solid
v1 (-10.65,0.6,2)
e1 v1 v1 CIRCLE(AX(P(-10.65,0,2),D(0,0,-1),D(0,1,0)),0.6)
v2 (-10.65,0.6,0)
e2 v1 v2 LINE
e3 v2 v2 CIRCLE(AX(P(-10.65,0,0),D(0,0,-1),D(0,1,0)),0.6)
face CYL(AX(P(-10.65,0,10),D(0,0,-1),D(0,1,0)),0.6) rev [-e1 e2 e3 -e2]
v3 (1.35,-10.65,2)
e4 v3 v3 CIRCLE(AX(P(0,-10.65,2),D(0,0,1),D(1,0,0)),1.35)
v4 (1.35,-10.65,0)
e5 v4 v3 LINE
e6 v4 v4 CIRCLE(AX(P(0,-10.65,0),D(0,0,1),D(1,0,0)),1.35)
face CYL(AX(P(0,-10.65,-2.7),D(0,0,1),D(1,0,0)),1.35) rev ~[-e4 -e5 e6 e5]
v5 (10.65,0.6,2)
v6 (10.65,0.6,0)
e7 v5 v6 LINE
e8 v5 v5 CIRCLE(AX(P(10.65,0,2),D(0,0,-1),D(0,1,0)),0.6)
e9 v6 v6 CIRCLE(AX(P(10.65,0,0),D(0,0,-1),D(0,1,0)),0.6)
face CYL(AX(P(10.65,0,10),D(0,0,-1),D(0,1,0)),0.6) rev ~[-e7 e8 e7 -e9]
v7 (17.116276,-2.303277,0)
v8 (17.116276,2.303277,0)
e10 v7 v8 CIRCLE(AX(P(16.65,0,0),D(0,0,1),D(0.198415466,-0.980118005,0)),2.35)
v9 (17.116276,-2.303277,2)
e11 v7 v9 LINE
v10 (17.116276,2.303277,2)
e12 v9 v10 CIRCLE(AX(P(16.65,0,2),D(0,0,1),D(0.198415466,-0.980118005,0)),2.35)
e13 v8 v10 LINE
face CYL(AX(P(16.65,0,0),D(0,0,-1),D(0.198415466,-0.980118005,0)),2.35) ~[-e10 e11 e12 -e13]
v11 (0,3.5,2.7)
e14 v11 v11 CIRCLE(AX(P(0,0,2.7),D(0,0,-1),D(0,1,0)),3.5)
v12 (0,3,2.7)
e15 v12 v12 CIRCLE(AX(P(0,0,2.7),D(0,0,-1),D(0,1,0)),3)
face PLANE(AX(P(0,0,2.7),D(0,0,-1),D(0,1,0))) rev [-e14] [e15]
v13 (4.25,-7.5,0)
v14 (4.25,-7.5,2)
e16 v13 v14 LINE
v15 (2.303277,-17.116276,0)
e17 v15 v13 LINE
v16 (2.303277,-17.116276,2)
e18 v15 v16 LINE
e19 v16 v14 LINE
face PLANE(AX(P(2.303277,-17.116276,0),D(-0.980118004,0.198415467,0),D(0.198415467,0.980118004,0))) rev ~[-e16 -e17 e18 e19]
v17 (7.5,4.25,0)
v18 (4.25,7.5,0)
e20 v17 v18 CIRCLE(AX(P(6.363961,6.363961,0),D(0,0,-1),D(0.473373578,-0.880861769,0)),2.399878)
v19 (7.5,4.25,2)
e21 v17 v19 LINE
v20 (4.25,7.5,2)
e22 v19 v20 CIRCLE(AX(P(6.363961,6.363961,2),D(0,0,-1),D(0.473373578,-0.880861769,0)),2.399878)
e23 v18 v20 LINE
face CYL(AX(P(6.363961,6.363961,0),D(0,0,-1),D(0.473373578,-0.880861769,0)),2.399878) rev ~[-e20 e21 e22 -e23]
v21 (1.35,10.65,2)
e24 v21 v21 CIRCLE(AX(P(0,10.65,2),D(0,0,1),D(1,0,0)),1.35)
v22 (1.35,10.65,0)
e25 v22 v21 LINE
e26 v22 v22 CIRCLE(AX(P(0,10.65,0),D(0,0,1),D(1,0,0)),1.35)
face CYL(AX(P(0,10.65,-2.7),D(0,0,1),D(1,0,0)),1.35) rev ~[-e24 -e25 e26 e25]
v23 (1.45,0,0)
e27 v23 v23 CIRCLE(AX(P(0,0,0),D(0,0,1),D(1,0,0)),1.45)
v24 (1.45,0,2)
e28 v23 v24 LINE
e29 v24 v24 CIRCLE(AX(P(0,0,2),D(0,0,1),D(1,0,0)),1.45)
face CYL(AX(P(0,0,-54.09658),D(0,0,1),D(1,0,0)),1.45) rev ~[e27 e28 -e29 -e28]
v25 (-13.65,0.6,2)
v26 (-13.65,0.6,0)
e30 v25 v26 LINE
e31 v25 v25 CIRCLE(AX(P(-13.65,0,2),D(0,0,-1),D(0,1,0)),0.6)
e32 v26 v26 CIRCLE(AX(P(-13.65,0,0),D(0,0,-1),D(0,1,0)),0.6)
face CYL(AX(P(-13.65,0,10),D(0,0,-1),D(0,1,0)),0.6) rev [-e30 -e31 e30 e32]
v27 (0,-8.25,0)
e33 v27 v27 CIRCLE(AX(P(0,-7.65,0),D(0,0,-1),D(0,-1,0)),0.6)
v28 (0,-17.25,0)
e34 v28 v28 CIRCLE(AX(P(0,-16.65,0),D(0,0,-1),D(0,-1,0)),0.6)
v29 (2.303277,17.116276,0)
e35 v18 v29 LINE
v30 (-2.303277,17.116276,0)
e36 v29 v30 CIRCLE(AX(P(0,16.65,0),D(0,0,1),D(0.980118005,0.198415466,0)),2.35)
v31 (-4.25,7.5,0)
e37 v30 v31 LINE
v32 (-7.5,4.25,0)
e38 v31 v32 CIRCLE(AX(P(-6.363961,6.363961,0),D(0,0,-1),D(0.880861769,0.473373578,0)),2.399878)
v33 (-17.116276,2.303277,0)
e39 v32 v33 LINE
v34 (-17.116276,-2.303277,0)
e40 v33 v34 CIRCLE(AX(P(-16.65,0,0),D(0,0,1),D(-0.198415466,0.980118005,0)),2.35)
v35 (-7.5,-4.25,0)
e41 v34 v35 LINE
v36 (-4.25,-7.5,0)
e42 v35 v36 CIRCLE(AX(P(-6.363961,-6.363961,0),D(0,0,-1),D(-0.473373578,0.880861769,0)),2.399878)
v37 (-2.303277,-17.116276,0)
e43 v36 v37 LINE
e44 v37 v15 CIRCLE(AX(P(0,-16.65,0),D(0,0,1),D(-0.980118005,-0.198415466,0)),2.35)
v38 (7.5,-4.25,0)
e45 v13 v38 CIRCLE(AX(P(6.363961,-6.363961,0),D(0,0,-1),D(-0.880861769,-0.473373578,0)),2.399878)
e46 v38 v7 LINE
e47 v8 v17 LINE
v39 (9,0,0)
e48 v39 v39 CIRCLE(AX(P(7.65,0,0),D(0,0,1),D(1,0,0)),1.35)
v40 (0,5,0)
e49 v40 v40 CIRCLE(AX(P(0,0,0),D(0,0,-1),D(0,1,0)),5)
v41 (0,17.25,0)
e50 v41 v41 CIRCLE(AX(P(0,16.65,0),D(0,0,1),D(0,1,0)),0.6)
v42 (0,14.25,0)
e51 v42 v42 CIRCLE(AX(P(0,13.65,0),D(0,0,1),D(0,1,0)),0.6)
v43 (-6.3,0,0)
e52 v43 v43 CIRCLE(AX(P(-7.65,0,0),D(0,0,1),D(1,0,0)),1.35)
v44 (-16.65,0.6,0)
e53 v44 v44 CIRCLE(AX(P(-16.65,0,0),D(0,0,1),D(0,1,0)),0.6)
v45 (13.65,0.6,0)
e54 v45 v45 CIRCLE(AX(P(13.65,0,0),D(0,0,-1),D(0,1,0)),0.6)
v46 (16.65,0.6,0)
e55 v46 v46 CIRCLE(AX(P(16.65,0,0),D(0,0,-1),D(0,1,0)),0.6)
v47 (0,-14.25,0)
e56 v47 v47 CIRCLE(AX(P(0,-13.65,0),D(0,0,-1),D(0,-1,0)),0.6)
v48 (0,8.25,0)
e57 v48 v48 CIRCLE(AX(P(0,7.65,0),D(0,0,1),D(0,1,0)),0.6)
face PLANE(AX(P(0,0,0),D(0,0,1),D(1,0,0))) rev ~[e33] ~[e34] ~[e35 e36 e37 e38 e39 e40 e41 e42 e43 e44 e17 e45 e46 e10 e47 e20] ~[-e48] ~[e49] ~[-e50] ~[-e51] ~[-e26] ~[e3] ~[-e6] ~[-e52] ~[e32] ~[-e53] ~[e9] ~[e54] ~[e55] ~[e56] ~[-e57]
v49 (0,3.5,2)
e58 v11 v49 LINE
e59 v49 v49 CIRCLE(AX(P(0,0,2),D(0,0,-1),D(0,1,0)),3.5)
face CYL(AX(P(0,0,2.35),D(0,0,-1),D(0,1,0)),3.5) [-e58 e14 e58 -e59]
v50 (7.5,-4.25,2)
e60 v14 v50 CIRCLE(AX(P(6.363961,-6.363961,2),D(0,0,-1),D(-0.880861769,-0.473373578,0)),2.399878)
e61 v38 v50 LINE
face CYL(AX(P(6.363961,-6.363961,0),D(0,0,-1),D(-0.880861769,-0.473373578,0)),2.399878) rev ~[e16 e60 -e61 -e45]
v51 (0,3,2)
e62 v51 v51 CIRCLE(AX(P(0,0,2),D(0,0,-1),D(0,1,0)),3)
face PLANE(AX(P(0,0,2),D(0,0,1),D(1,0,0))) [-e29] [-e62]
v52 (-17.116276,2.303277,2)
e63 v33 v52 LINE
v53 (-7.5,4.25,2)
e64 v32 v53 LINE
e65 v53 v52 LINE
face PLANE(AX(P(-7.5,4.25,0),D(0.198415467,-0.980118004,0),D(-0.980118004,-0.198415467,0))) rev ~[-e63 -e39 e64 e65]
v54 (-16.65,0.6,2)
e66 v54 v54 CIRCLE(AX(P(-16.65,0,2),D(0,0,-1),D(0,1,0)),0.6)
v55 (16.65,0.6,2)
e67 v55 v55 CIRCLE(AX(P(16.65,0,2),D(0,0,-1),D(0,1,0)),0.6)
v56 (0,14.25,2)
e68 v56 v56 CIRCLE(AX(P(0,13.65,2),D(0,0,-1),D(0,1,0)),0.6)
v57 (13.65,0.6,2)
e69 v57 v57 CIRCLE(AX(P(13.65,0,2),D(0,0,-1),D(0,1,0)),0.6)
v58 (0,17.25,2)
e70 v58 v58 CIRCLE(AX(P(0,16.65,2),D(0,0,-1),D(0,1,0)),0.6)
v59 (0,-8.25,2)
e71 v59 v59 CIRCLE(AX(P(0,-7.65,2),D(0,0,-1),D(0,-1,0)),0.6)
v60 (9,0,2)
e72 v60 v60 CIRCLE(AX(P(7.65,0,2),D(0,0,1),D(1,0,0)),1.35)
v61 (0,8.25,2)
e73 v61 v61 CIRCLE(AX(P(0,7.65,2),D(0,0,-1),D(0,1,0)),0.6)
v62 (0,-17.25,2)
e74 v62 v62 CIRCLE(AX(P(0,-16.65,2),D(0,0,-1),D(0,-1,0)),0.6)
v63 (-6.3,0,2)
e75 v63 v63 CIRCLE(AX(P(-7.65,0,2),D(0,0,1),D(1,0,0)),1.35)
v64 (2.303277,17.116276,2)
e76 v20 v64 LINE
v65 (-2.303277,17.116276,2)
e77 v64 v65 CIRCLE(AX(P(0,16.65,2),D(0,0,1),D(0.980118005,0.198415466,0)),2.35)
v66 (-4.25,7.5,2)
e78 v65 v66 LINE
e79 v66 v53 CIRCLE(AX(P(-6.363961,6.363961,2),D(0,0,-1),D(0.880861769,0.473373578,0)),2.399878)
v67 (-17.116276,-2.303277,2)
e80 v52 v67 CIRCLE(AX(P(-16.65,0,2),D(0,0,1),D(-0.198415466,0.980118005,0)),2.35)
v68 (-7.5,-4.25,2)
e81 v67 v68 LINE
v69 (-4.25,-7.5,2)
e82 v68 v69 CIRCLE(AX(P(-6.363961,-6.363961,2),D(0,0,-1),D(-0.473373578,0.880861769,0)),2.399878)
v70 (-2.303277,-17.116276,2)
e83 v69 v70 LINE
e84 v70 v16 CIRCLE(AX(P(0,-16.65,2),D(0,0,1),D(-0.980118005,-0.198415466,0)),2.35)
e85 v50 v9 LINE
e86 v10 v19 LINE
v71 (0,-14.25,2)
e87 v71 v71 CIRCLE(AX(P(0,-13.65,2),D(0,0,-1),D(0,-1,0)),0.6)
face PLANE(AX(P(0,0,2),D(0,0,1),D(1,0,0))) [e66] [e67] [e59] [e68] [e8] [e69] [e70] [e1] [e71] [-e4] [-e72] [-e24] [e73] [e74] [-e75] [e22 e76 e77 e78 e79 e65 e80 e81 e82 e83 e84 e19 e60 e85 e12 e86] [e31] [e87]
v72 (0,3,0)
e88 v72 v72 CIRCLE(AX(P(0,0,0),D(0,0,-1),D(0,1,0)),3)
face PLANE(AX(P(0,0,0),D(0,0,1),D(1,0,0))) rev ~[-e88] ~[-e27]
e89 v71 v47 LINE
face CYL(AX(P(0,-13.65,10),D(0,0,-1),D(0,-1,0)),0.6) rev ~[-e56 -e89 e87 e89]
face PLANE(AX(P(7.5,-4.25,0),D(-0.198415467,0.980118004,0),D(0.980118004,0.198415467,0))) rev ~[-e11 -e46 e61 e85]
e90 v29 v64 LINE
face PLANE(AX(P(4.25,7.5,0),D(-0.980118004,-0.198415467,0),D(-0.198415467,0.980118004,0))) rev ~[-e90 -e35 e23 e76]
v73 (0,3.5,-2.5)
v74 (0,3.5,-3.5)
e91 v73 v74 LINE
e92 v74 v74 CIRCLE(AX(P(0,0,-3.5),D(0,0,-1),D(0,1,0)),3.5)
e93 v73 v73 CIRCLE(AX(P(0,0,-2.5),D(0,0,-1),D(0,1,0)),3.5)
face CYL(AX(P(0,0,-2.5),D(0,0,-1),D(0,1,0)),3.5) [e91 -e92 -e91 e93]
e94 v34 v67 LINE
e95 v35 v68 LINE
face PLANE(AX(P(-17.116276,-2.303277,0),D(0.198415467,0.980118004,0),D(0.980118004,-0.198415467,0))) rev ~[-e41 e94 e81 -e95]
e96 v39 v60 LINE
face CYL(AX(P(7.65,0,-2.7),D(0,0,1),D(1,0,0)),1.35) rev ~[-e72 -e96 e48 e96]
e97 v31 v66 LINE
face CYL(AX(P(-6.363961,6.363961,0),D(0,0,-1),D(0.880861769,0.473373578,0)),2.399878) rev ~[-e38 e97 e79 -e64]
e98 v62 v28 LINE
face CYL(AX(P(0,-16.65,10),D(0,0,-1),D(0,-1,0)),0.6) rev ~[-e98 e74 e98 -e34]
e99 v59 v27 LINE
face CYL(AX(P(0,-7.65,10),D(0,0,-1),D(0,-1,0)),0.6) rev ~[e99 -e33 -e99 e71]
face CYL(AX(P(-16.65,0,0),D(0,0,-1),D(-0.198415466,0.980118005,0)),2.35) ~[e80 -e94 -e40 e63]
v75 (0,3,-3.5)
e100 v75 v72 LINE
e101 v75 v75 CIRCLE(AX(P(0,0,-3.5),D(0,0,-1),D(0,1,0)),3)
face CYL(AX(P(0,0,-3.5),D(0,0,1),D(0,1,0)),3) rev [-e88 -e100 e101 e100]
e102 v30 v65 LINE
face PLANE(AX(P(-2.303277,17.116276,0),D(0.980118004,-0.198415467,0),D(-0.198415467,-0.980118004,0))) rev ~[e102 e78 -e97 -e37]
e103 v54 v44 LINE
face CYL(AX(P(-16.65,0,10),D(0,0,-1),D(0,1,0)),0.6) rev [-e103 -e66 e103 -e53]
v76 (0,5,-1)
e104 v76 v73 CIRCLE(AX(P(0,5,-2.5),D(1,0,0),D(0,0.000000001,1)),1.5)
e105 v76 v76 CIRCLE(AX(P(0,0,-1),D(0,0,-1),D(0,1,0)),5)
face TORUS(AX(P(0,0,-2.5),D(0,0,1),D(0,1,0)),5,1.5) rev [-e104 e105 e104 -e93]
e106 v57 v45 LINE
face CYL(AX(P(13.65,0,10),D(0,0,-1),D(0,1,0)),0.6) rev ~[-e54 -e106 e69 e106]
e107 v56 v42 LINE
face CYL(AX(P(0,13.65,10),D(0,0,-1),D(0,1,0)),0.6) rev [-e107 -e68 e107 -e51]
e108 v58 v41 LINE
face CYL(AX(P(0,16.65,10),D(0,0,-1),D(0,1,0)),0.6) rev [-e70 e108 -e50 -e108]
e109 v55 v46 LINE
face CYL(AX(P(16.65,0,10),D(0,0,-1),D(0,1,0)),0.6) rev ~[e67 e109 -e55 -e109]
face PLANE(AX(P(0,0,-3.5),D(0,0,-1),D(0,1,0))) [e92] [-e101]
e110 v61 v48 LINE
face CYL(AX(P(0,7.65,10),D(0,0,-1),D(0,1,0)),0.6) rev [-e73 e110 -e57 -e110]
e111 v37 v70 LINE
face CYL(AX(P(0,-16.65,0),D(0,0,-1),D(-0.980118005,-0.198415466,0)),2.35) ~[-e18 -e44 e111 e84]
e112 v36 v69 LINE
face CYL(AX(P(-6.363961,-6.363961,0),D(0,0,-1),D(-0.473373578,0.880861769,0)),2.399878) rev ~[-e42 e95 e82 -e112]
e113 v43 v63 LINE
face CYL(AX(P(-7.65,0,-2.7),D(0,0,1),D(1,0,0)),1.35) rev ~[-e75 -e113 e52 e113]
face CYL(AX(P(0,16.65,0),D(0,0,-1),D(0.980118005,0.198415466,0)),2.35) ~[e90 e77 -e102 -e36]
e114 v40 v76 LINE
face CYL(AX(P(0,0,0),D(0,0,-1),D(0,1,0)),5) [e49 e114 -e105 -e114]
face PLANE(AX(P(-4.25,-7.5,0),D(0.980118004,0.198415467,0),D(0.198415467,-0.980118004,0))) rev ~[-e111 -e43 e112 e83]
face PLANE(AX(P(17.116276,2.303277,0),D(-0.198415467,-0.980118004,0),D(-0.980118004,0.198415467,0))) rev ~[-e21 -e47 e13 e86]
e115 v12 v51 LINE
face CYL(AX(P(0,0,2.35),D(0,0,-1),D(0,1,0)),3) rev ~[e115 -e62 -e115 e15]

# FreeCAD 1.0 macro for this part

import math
import FreeCAD as App
import Part
import Sketcher

V = App.Vector
Q = App.Units.Quantity

doc = App.newDocument("Part")
body = doc.addObject("PartDesign::Body", "Body")

# Sketch on XY plane
sketch1 = doc.addObject("Sketcher::SketchObject", "Sketch")
body.addObject(sketch1)
sketch1.AttachmentSupport = (doc.XY_Plane, [""])
sketch1.MapMode = "FlatFace"
sketch1.addGeometry(Part.LineSegment(V(-2.3, 17.1, 0), V(-4.2, 7.5, 0)), False)
sketch1.addGeometry(Part.ArcOfCircle(Part.Circle(V(-6.4, 6.4, 0), V(0, 0, 1), 2.4), math.radians(-118), math.radians(28)), False)
sketch1.addGeometry(Part.LineSegment(V(-7.5, 4.2, 0), V(-17.1, 2.3, 0)), False)
sketch1.addGeometry(Part.ArcOfCircle(Part.Circle(V(-16.7, 0, 0), V(0, 0, 1), 2.3), math.radians(101), math.radians(259)), False)
sketch1.addGeometry(Part.LineSegment(V(-17.1, -2.3, 0), V(-7.5, -4.2, 0)), False)
sketch1.addGeometry(Part.ArcOfCircle(Part.Circle(V(-6.4, -6.4, 0), V(0, 0, 1), 2.4), math.radians(-28), math.radians(118)), False)
sketch1.addGeometry(Part.LineSegment(V(-4.2, -7.5, 0), V(-2.3, -17.1, 0)), False)
sketch1.addGeometry(Part.ArcOfCircle(Part.Circle(V(0, -16.7, 0), V(0, 0, 1), 2.3), math.radians(-169), math.radians(-11)), False)
sketch1.addGeometry(Part.LineSegment(V(2.3, -17.1, 0), V(4.2, -7.5, 0)), False)
sketch1.addGeometry(Part.ArcOfCircle(Part.Circle(V(6.4, -6.4, 0), V(0, 0, 1), 2.4), math.radians(62), math.radians(208)), False)
sketch1.addGeometry(Part.LineSegment(V(7.5, -4.2, 0), V(17.1, -2.3, 0)), False)
sketch1.addGeometry(Part.ArcOfCircle(Part.Circle(V(16.7, 0, 0), V(0, 0, 1), 2.3), math.radians(-79), math.radians(79)), False)
sketch1.addGeometry(Part.LineSegment(V(17.1, 2.3, 0), V(7.5, 4.2, 0)), False)
sketch1.addGeometry(Part.ArcOfCircle(Part.Circle(V(6.4, 6.4, 0), V(0, 0, 1), 2.4), math.radians(152), math.radians(298)), False)
sketch1.addGeometry(Part.LineSegment(V(4.2, 7.5, 0), V(2.3, 17.1, 0)), False)
sketch1.addGeometry(Part.ArcOfCircle(Part.Circle(V(0, 16.7, 0), V(0, 0, 1), 2.3), math.radians(11), math.radians(169)), False)
sketch1.addConstraint(Sketcher.Constraint("Coincident", 0, 2, 1, 2))
sketch1.addConstraint(Sketcher.Constraint("Coincident", 1, 1, 2, 1))
sketch1.addConstraint(Sketcher.Constraint("Tangent", 2, 2, 3, 1))
sketch1.addConstraint(Sketcher.Constraint("Tangent", 3, 2, 4, 1))
sketch1.addConstraint(Sketcher.Constraint("Coincident", 4, 2, 5, 2))
sketch1.addConstraint(Sketcher.Constraint("Coincident", 5, 1, 6, 1))
sketch1.addConstraint(Sketcher.Constraint("Tangent", 6, 2, 7, 1))
sketch1.addConstraint(Sketcher.Constraint("Tangent", 7, 2, 8, 1))
sketch1.addConstraint(Sketcher.Constraint("Coincident", 8, 2, 9, 2))
sketch1.addConstraint(Sketcher.Constraint("Coincident", 9, 1, 10, 1))
sketch1.addConstraint(Sketcher.Constraint("Tangent", 10, 2, 11, 1))
sketch1.addConstraint(Sketcher.Constraint("Tangent", 11, 2, 12, 1))
sketch1.addConstraint(Sketcher.Constraint("Coincident", 12, 2, 13, 2))
sketch1.addConstraint(Sketcher.Constraint("Coincident", 13, 1, 14, 1))
sketch1.addConstraint(Sketcher.Constraint("Tangent", 14, 2, 15, 1))
sketch1.addConstraint(Sketcher.Constraint("Tangent", 15, 2, 0, 1))
sketch1.addConstraint(Sketcher.Constraint("Equal", 1, 5))
sketch1.addConstraint(Sketcher.Constraint("Equal", 3, 7))
sketch1.addConstraint(Sketcher.Constraint("Equal", 5, 9))
sketch1.addConstraint(Sketcher.Constraint("Equal", 7, 11))
sketch1.addConstraint(Sketcher.Constraint("Equal", 9, 13))
sketch1.addConstraint(Sketcher.Constraint("Equal", 11, 15))
sketch1.addConstraint(Sketcher.Constraint("Symmetric", 1, 3, 9, 3, -1, 1))
sketch1.addConstraint(Sketcher.Constraint("Symmetric", 3, 3, 11, 3, -1, 1))
sketch1.addConstraint(Sketcher.Constraint("Symmetric", 5, 3, 13, 3, -1, 1))
sketch1.addConstraint(Sketcher.Constraint("Symmetric", 7, 3, 15, 3, -1, 1))
sketch1.addConstraint(Sketcher.Constraint("Symmetric", 5, 3, 9, 3, -2))
sketch1.addConstraint(Sketcher.Constraint("Symmetric", 6, 2, 7, 2, -2))
sketch1.addConstraint(Sketcher.Constraint("Symmetric", 3, 2, 10, 2, -2))
sketch1.addConstraint(Sketcher.Constraint("Perpendicular", 0, 4))
sketch1.addConstraint(Sketcher.Constraint("Perpendicular", 2, 6))
sketch1.addConstraint(Sketcher.Constraint("Perpendicular", 4, 8))
sketch1.addConstraint(Sketcher.Constraint("Perpendicular", 8, 12))
sketch1.addConstraint(Sketcher.Constraint("Perpendicular", 10, 14))
sketch1.addConstraint(Sketcher.Constraint("Equal", 0, 2))
sketch1.addConstraint(Sketcher.Constraint("Radius", 3, Q("2.35 mm")))
sketch1.addConstraint(Sketcher.Constraint("DistanceY", -1, 1, 0, 2, Q("7.5 mm")))
sketch1.addConstraint(Sketcher.Constraint("DistanceX", 1, 1, -1, 1, Q("7.5 mm")))
sketch1.addConstraint(Sketcher.Constraint("DistanceX", 3, 3, 11, 3, Q("33.3 mm")))
sketch1.addConstraint(Sketcher.Constraint("DistanceX", 3, 3, 0, 2, Q("12.4 mm")))
sketch1.addConstraint(Sketcher.Constraint("Radius", 1, Q("2.399878 mm")))
pad1 = doc.addObject("PartDesign::Pad", "Pad")
body.addObject(pad1)
pad1.Profile = sketch1
pad1.Length = 2

# Sketch on YZ plane
sketch2 = doc.addObject("Sketcher::SketchObject", "Sketch001")
body.addObject(sketch2)
sketch2.AttachmentSupport = (doc.YZ_Plane, [""])
sketch2.MapMode = "FlatFace"
sketch2.addGeometry(Part.LineSegment(V(16.6, 10.4, 0), V(16.6, 0, 0)), False)
sketch2.addGeometry(Part.LineSegment(V(16.6, 0, 0), V(17.2, 0, 0)), False)
sketch2.addGeometry(Part.LineSegment(V(17.2, 0, 0), V(17.2, 10, 0)), False)
sketch2.addGeometry(Part.LineSegment(V(17.2, 10, 0), V(16.6, 10.4, 0)), False)
sketch2.addGeometry(Part.LineSegment(V(16.6, 0, 0), V(16.6, 10.4, 0)), True)  # axis
sketch2.addConstraint(Sketcher.Constraint("Coincident", 0, 2, 1, 1))
sketch2.addConstraint(Sketcher.Constraint("Coincident", 1, 2, 2, 1))
sketch2.addConstraint(Sketcher.Constraint("Coincident", 2, 2, 3, 1))
sketch2.addConstraint(Sketcher.Constraint("Coincident", 3, 2, 0, 1))
sketch2.addConstraint(Sketcher.Constraint("Vertical", 0))
sketch2.addConstraint(Sketcher.Constraint("Horizontal", 1))
sketch2.addConstraint(Sketcher.Constraint("Vertical", 2))
sketch2.addConstraint(Sketcher.Constraint("Vertical", 4))
sketch2.addConstraint(Sketcher.Constraint("Coincident", 4, 1, 0, 2))
sketch2.addConstraint(Sketcher.Constraint("PointOnObject", 0, 2, -1))
sketch2.addConstraint(Sketcher.Constraint("Equal", 0, 4))
sketch2.addConstraint(Sketcher.Constraint("DistanceY", 2, 1, 2, 2, Q("10 mm")))
sketch2.addConstraint(Sketcher.Constraint("Angle", 3, Q("149 deg")))
sketch2.addConstraint(Sketcher.Constraint("DistanceX", 1, 1, 1, 2, Q("0.6 mm")))
sketch2.addConstraint(Sketcher.Constraint("DistanceX", -1, 1, 0, 2, Q("16.65 mm")))
groove = doc.addObject("PartDesign::Groove", "Groove")
body.addObject(groove)
groove.Profile = sketch2
groove.ReferenceAxis = (sketch2, ["Axis0"])
groove.Angle = 360
doc.recompute()

linearpattern = doc.addObject("PartDesign::LinearPattern", "LinearPattern")
body.addObject(linearpattern)
linearpattern.Originals = [groove]
linearpattern.Direction = (doc.Y_Axis, [""])
linearpattern.Mode = "offset"
linearpattern.Offset = 6
linearpattern.Occurrences = 2
linearpattern.Reversed = True
body.Tip = linearpattern
doc.recompute()

linearpattern2 = doc.addObject("PartDesign::LinearPattern", "LinearPattern001")
body.addObject(linearpattern2)
linearpattern2.Originals = [groove]
linearpattern2.Direction = (doc.Y_Axis, [""])
linearpattern2.Mode = "offset"
linearpattern2.Offset = 9
linearpattern2.Occurrences = 2
linearpattern2.Reversed = True
body.Tip = linearpattern2
doc.recompute()

linearpattern3 = doc.addObject("PartDesign::LinearPattern", "LinearPattern002")
body.addObject(linearpattern3)
linearpattern3.Originals = [groove]
linearpattern3.Direction = (doc.Y_Axis, [""])
linearpattern3.Mode = "offset"
linearpattern3.Offset = 3
linearpattern3.Occurrences = 2
linearpattern3.Reversed = True
body.Tip = linearpattern3
doc.recompute()

datumline = doc.addObject("PartDesign::Line", "DatumLine")
body.addObject(datumline)
datumline.Placement = App.Placement(V(0, 0, 0), App.Rotation(V(0, 0, 1), V(-0.707106781, -0.707106781, 0)))
linearpattern4 = doc.addObject("PartDesign::LinearPattern", "LinearPattern003")
body.addObject(linearpattern4)
linearpattern4.Originals = [groove]
linearpattern4.Direction = (datumline, [""])
linearpattern4.Mode = "offset"
linearpattern4.Offset = 23.546656
linearpattern4.Occurrences = 2
body.Tip = linearpattern4
doc.recompute()

datumline2 = doc.addObject("PartDesign::Line", "DatumLine001")
body.addObject(datumline2)
datumline2.Placement = App.Placement(V(0, 0, 0), App.Rotation(V(0, 0, 1), V(-0.633996267, -0.773336106, 0)))
linearpattern5 = doc.addObject("PartDesign::LinearPattern", "LinearPattern004")
body.addObject(linearpattern5)
linearpattern5.Originals = [groove]
linearpattern5.Direction = (datumline2, [""])
linearpattern5.Mode = "offset"
linearpattern5.Offset = 21.530095
linearpattern5.Occurrences = 2
body.Tip = linearpattern5
doc.recompute()

datumline3 = doc.addObject("PartDesign::Line", "DatumLine002")
body.addObject(datumline3)
datumline3.Placement = App.Placement(V(0, 0, 0), App.Rotation(V(0, 0, 1), V(-0.538838319, -0.842409203, 0)))
linearpattern6 = doc.addObject("PartDesign::LinearPattern", "LinearPattern005")
body.addObject(linearpattern6)
linearpattern6.Originals = [groove]
linearpattern6.Direction = (datumline3, [""])
linearpattern6.Mode = "offset"
linearpattern6.Offset = 19.764741
linearpattern6.Occurrences = 2
body.Tip = linearpattern6
doc.recompute()

datumline4 = doc.addObject("PartDesign::Line", "DatumLine003")
body.addObject(datumline4)
datumline4.Placement = App.Placement(V(0, 0, 0), App.Rotation(V(0, 0, 1), V(-0.417500172, -0.908676844, 0)))
linearpattern7 = doc.addObject("PartDesign::LinearPattern", "LinearPattern006")
body.addObject(linearpattern7)
linearpattern7.Originals = [groove]
linearpattern7.Direction = (datumline4, [""])
linearpattern7.Mode = "offset"
linearpattern7.Offset = 18.323346
linearpattern7.Occurrences = 2
body.Tip = linearpattern7
doc.recompute()

mirrored = doc.addObject("PartDesign::Mirrored", "Mirrored")
body.addObject(mirrored)
mirrored.Originals = [groove]
mirrored.MirrorPlane = (doc.YZ_Plane, [""])
body.Tip = mirrored

# Sketch on YZ plane
sketch3 = doc.addObject("Sketcher::SketchObject", "Sketch002")
body.addObject(sketch3)
sketch3.AttachmentSupport = (doc.YZ_Plane, [""])
sketch3.MapMode = "FlatFace"
sketch3.addGeometry(Part.LineSegment(V(10.7, 0, 0), V(10.7, 10.4, 0)), False)
sketch3.addGeometry(Part.LineSegment(V(10.7, 10.4, 0), V(11.2, 10, 0)), False)
sketch3.addGeometry(Part.LineSegment(V(11.2, 10, 0), V(11.2, 0, 0)), False)
sketch3.addGeometry(Part.LineSegment(V(11.2, 0, 0), V(10.7, 0, 0)), False)
sketch3.addGeometry(Part.LineSegment(V(10.7, 10.4, 0), V(10.7, 0, 0)), True)  # axis
sketch3.addConstraint(Sketcher.Constraint("Coincident", 0, 2, 1, 1))
sketch3.addConstraint(Sketcher.Constraint("Coincident", 1, 2, 2, 1))
sketch3.addConstraint(Sketcher.Constraint("Coincident", 2, 2, 3, 1))
sketch3.addConstraint(Sketcher.Constraint("Coincident", 3, 2, 0, 1))
sketch3.addConstraint(Sketcher.Constraint("Vertical", 0))
sketch3.addConstraint(Sketcher.Constraint("Vertical", 2))
sketch3.addConstraint(Sketcher.Constraint("Horizontal", 3))
sketch3.addConstraint(Sketcher.Constraint("Vertical", 4))
sketch3.addConstraint(Sketcher.Constraint("Coincident", 4, 1, 0, 2))
sketch3.addConstraint(Sketcher.Constraint("PointOnObject", 2, 2, -1))
sketch3.addConstraint(Sketcher.Constraint("PointOnObject", 4, 2, -1))
sketch3.addConstraint(Sketcher.Constraint("DistanceY", 2, 2, 2, 1, Q("10 mm")))
sketch3.addConstraint(Sketcher.Constraint("Angle", 1, Q("-31 deg")))
sketch3.addConstraint(Sketcher.Constraint("DistanceX", 3, 2, 3, 1, Q("0.6 mm")))
sketch3.addConstraint(Sketcher.Constraint("DistanceX", -1, 1, 0, 2, Q("10.65 mm")))
groove2 = doc.addObject("PartDesign::Groove", "Groove001")
body.addObject(groove2)
groove2.Profile = sketch3
groove2.ReferenceAxis = (sketch3, ["Axis0"])
groove2.Angle = 360

# Sketch on YZ plane
sketch4 = doc.addObject("Sketcher::SketchObject", "Sketch003")
body.addObject(sketch4)
sketch4.AttachmentSupport = (doc.YZ_Plane, [""])
sketch4.MapMode = "FlatFace"
sketch4.addGeometry(Part.LineSegment(V(7.7, 0, 0), V(7.7, 10.4, 0)), False)
sketch4.addGeometry(Part.LineSegment(V(7.7, 10.4, 0), V(8.2, 10, 0)), False)
sketch4.addGeometry(Part.LineSegment(V(8.2, 10, 0), V(8.2, 0, 0)), False)
sketch4.addGeometry(Part.LineSegment(V(8.2, 0, 0), V(7.7, 0, 0)), False)
sketch4.addGeometry(Part.LineSegment(V(7.7, 10.4, 0), V(7.7, 0, 0)), True)  # axis
sketch4.addConstraint(Sketcher.Constraint("Coincident", 0, 2, 1, 1))
sketch4.addConstraint(Sketcher.Constraint("Coincident", 1, 2, 2, 1))
sketch4.addConstraint(Sketcher.Constraint("Coincident", 2, 2, 3, 1))
sketch4.addConstraint(Sketcher.Constraint("Coincident", 3, 2, 0, 1))
sketch4.addConstraint(Sketcher.Constraint("Vertical", 0))
sketch4.addConstraint(Sketcher.Constraint("Vertical", 2))
sketch4.addConstraint(Sketcher.Constraint("Horizontal", 3))
sketch4.addConstraint(Sketcher.Constraint("Vertical", 4))
sketch4.addConstraint(Sketcher.Constraint("Coincident", 4, 1, 0, 2))
sketch4.addConstraint(Sketcher.Constraint("PointOnObject", 2, 2, -1))
sketch4.addConstraint(Sketcher.Constraint("PointOnObject", 4, 2, -1))
sketch4.addConstraint(Sketcher.Constraint("DistanceY", 2, 2, 2, 1, Q("10 mm")))
sketch4.addConstraint(Sketcher.Constraint("Angle", 1, Q("-31 deg")))
sketch4.addConstraint(Sketcher.Constraint("DistanceX", 3, 2, 3, 1, Q("0.6 mm")))
sketch4.addConstraint(Sketcher.Constraint("DistanceX", -1, 1, 0, 2, Q("7.65 mm")))
groove3 = doc.addObject("PartDesign::Groove", "Groove002")
body.addObject(groove3)
groove3.Profile = sketch4
groove3.ReferenceAxis = (sketch4, ["Axis0"])
groove3.Angle = 360

# Sketch on YZ plane
sketch5 = doc.addObject("Sketcher::SketchObject", "Sketch004")
body.addObject(sketch5)
sketch5.AttachmentSupport = (doc.YZ_Plane, [""])
sketch5.MapMode = "FlatFace"
sketch5.addGeometry(Part.LineSegment(V(13.7, 0, 0), V(13.7, 10.4, 0)), False)
sketch5.addGeometry(Part.LineSegment(V(13.7, 10.4, 0), V(14.2, 10, 0)), False)
sketch5.addGeometry(Part.LineSegment(V(14.2, 10, 0), V(14.2, 0, 0)), False)
sketch5.addGeometry(Part.LineSegment(V(14.2, 0, 0), V(13.7, 0, 0)), False)
sketch5.addGeometry(Part.LineSegment(V(13.7, 10.4, 0), V(13.7, 0, 0)), True)  # axis
sketch5.addConstraint(Sketcher.Constraint("Coincident", 0, 2, 1, 1))
sketch5.addConstraint(Sketcher.Constraint("Coincident", 1, 2, 2, 1))
sketch5.addConstraint(Sketcher.Constraint("Coincident", 2, 2, 3, 1))
sketch5.addConstraint(Sketcher.Constraint("Coincident", 3, 2, 0, 1))
sketch5.addConstraint(Sketcher.Constraint("Vertical", 0))
sketch5.addConstraint(Sketcher.Constraint("Vertical", 2))
sketch5.addConstraint(Sketcher.Constraint("Horizontal", 3))
sketch5.addConstraint(Sketcher.Constraint("Vertical", 4))
sketch5.addConstraint(Sketcher.Constraint("Coincident", 4, 1, 0, 2))
sketch5.addConstraint(Sketcher.Constraint("PointOnObject", 2, 2, -1))
sketch5.addConstraint(Sketcher.Constraint("PointOnObject", 4, 2, -1))
sketch5.addConstraint(Sketcher.Constraint("DistanceY", 2, 2, 2, 1, Q("10 mm")))
sketch5.addConstraint(Sketcher.Constraint("Angle", 1, Q("-31 deg")))
sketch5.addConstraint(Sketcher.Constraint("DistanceX", 3, 2, 3, 1, Q("0.6 mm")))
sketch5.addConstraint(Sketcher.Constraint("DistanceX", -1, 1, 0, 2, Q("13.65 mm")))
groove4 = doc.addObject("PartDesign::Groove", "Groove003")
body.addObject(groove4)
groove4.Profile = sketch5
groove4.ReferenceAxis = (sketch5, ["Axis0"])
groove4.Angle = 360

# Sketch on YZ plane
sketch6 = doc.addObject("Sketcher::SketchObject", "Sketch005")
body.addObject(sketch6)
sketch6.AttachmentSupport = (doc.YZ_Plane, [""])
sketch6.MapMode = "FlatFace"
sketch6.AttachmentOffset = App.Placement(V(0, 0, 16.65), App.Rotation())
sketch6.addGeometry(Part.LineSegment(V(0, 0, 0), V(0, 10.4, 0)), False)
sketch6.addGeometry(Part.LineSegment(V(0, 10.4, 0), V(0.6, 10, 0)), False)
sketch6.addGeometry(Part.LineSegment(V(0.6, 10, 0), V(0.6, 0, 0)), False)
sketch6.addGeometry(Part.LineSegment(V(0.6, 0, 0), V(0, 0, 0)), False)
sketch6.addConstraint(Sketcher.Constraint("Coincident", 0, 2, 1, 1))
sketch6.addConstraint(Sketcher.Constraint("Coincident", 1, 2, 2, 1))
sketch6.addConstraint(Sketcher.Constraint("Coincident", 2, 2, 3, 1))
sketch6.addConstraint(Sketcher.Constraint("Coincident", 3, 2, 0, 1))
sketch6.addConstraint(Sketcher.Constraint("Vertical", 0))
sketch6.addConstraint(Sketcher.Constraint("Vertical", 2))
sketch6.addConstraint(Sketcher.Constraint("Horizontal", 3))
sketch6.addConstraint(Sketcher.Constraint("Coincident", 3, 2, -1, 1))
sketch6.addConstraint(Sketcher.Constraint("DistanceY", 2, 2, 2, 1, Q("10 mm")))
sketch6.addConstraint(Sketcher.Constraint("Angle", 1, Q("-31 deg")))
sketch6.addConstraint(Sketcher.Constraint("DistanceX", 3, 2, 3, 1, Q("0.6 mm")))
groove5 = doc.addObject("PartDesign::Groove", "Groove004")
body.addObject(groove5)
groove5.Profile = sketch6
groove5.ReferenceAxis = (sketch6, ["V_Axis"])
groove5.Angle = 360

# Sketch on YZ plane
sketch7 = doc.addObject("Sketcher::SketchObject", "Sketch006")
body.addObject(sketch7)
sketch7.AttachmentSupport = (doc.YZ_Plane, [""])
sketch7.MapMode = "FlatFace"
sketch7.AttachmentOffset = App.Placement(V(0, 0, 13.65), App.Rotation())
sketch7.addGeometry(Part.LineSegment(V(0, 0, 0), V(0, 10.4, 0)), False)
sketch7.addGeometry(Part.LineSegment(V(0, 10.4, 0), V(0.6, 10, 0)), False)
sketch7.addGeometry(Part.LineSegment(V(0.6, 10, 0), V(0.6, 0, 0)), False)
sketch7.addGeometry(Part.LineSegment(V(0.6, 0, 0), V(0, 0, 0)), False)
sketch7.addConstraint(Sketcher.Constraint("Coincident", 0, 2, 1, 1))
sketch7.addConstraint(Sketcher.Constraint("Coincident", 1, 2, 2, 1))
sketch7.addConstraint(Sketcher.Constraint("Coincident", 2, 2, 3, 1))
sketch7.addConstraint(Sketcher.Constraint("Coincident", 3, 2, 0, 1))
sketch7.addConstraint(Sketcher.Constraint("Vertical", 0))
sketch7.addConstraint(Sketcher.Constraint("Vertical", 2))
sketch7.addConstraint(Sketcher.Constraint("Horizontal", 3))
sketch7.addConstraint(Sketcher.Constraint("Coincident", 3, 2, -1, 1))
sketch7.addConstraint(Sketcher.Constraint("DistanceY", 2, 2, 2, 1, Q("10 mm")))
sketch7.addConstraint(Sketcher.Constraint("Angle", 1, Q("-31 deg")))
sketch7.addConstraint(Sketcher.Constraint("DistanceX", 3, 2, 3, 1, Q("0.6 mm")))
groove6 = doc.addObject("PartDesign::Groove", "Groove005")
body.addObject(groove6)
groove6.Profile = sketch7
groove6.ReferenceAxis = (sketch7, ["V_Axis"])
groove6.Angle = 360

# Sketch on YZ plane
sketch8 = doc.addObject("Sketcher::SketchObject", "Sketch007")
body.addObject(sketch8)
sketch8.AttachmentSupport = (doc.YZ_Plane, [""])
sketch8.MapMode = "FlatFace"
sketch8.AttachmentOffset = App.Placement(V(0, 0, 10.65), App.Rotation())
sketch8.addGeometry(Part.LineSegment(V(0, 0, 0), V(0, 10.4, 0)), False)
sketch8.addGeometry(Part.LineSegment(V(0, 10.4, 0), V(0.6, 10, 0)), False)
sketch8.addGeometry(Part.LineSegment(V(0.6, 10, 0), V(0.6, 0, 0)), False)
sketch8.addGeometry(Part.LineSegment(V(0.6, 0, 0), V(0, 0, 0)), False)
sketch8.addConstraint(Sketcher.Constraint("Coincident", 0, 2, 1, 1))
sketch8.addConstraint(Sketcher.Constraint("Coincident", 1, 2, 2, 1))
sketch8.addConstraint(Sketcher.Constraint("Coincident", 2, 2, 3, 1))
sketch8.addConstraint(Sketcher.Constraint("Coincident", 3, 2, 0, 1))
sketch8.addConstraint(Sketcher.Constraint("Vertical", 0))
sketch8.addConstraint(Sketcher.Constraint("Vertical", 2))
sketch8.addConstraint(Sketcher.Constraint("Horizontal", 3))
sketch8.addConstraint(Sketcher.Constraint("Coincident", 3, 2, -1, 1))
sketch8.addConstraint(Sketcher.Constraint("DistanceY", 2, 2, 2, 1, Q("10 mm")))
sketch8.addConstraint(Sketcher.Constraint("Angle", 1, Q("-31 deg")))
sketch8.addConstraint(Sketcher.Constraint("DistanceX", 3, 2, 3, 1, Q("0.6 mm")))
groove7 = doc.addObject("PartDesign::Groove", "Groove006")
body.addObject(groove7)
groove7.Profile = sketch8
groove7.ReferenceAxis = (sketch8, ["V_Axis"])
groove7.Angle = 360

# Sketch on YZ plane
sketch9 = doc.addObject("Sketcher::SketchObject", "Sketch008")
body.addObject(sketch9)
sketch9.AttachmentSupport = (doc.YZ_Plane, [""])
sketch9.MapMode = "FlatFace"
sketch9.AttachmentOffset = App.Placement(V(0, 0, 7.65), App.Rotation())
sketch9.addGeometry(Part.LineSegment(V(0, 0, 0), V(0, 10.4, 0)), False)
sketch9.addGeometry(Part.LineSegment(V(0, 10.4, 0), V(0.6, 10, 0)), False)
sketch9.addGeometry(Part.LineSegment(V(0.6, 10, 0), V(0.6, 0, 0)), False)
sketch9.addGeometry(Part.LineSegment(V(0.6, 0, 0), V(0, 0, 0)), False)
sketch9.addConstraint(Sketcher.Constraint("Coincident", 0, 2, 1, 1))
sketch9.addConstraint(Sketcher.Constraint("Coincident", 1, 2, 2, 1))
sketch9.addConstraint(Sketcher.Constraint("Coincident", 2, 2, 3, 1))
sketch9.addConstraint(Sketcher.Constraint("Coincident", 3, 2, 0, 1))
sketch9.addConstraint(Sketcher.Constraint("Vertical", 0))
sketch9.addConstraint(Sketcher.Constraint("Vertical", 2))
sketch9.addConstraint(Sketcher.Constraint("Horizontal", 3))
sketch9.addConstraint(Sketcher.Constraint("Coincident", 3, 2, -1, 1))
sketch9.addConstraint(Sketcher.Constraint("DistanceY", 2, 2, 2, 1, Q("10 mm")))
sketch9.addConstraint(Sketcher.Constraint("Angle", 1, Q("-31 deg")))
sketch9.addConstraint(Sketcher.Constraint("DistanceX", 3, 2, 3, 1, Q("0.6 mm")))
groove8 = doc.addObject("PartDesign::Groove", "Groove007")
body.addObject(groove8)
groove8.Profile = sketch9
groove8.ReferenceAxis = (sketch9, ["V_Axis"])
groove8.Angle = 360
doc.recompute()

mirrored2 = doc.addObject("PartDesign::Mirrored", "Mirrored001")
body.addObject(mirrored2)
mirrored2.Originals = [groove]
mirrored2.MirrorPlane = (doc.XZ_Plane, [""])
body.Tip = mirrored2

# Sketch on YZ plane
sketch10 = doc.addObject("Sketcher::SketchObject", "Sketch009")
body.addObject(sketch10)
sketch10.AttachmentSupport = (doc.YZ_Plane, [""])
sketch10.MapMode = "FlatFace"
sketch10.addGeometry(Part.LineSegment(V(-10.7, 0, 0), V(-10.7, 10.4, 0)), False)
sketch10.addGeometry(Part.LineSegment(V(-10.7, 10.4, 0), V(-11.2, 10, 0)), False)
sketch10.addGeometry(Part.LineSegment(V(-11.2, 10, 0), V(-11.2, 0, 0)), False)
sketch10.addGeometry(Part.LineSegment(V(-11.2, 0, 0), V(-10.7, 0, 0)), False)
sketch10.addGeometry(Part.LineSegment(V(-10.7, 10.4, 0), V(-10.7, 0, 0)), True)  # axis
sketch10.addConstraint(Sketcher.Constraint("Coincident", 0, 2, 1, 1))
sketch10.addConstraint(Sketcher.Constraint("Coincident", 1, 2, 2, 1))
sketch10.addConstraint(Sketcher.Constraint("Coincident", 2, 2, 3, 1))
sketch10.addConstraint(Sketcher.Constraint("Coincident", 3, 2, 0, 1))
sketch10.addConstraint(Sketcher.Constraint("Vertical", 0))
sketch10.addConstraint(Sketcher.Constraint("Vertical", 2))
sketch10.addConstraint(Sketcher.Constraint("Horizontal", 3))
sketch10.addConstraint(Sketcher.Constraint("Vertical", 4))
sketch10.addConstraint(Sketcher.Constraint("Coincident", 4, 1, 0, 2))
sketch10.addConstraint(Sketcher.Constraint("PointOnObject", 2, 2, -1))
sketch10.addConstraint(Sketcher.Constraint("PointOnObject", 4, 2, -1))
sketch10.addConstraint(Sketcher.Constraint("DistanceY", 2, 2, 2, 1, Q("10 mm")))
sketch10.addConstraint(Sketcher.Constraint("Angle", 1, Q("-149 deg")))
sketch10.addConstraint(Sketcher.Constraint("DistanceX", 3, 1, 3, 2, Q("0.6 mm")))
sketch10.addConstraint(Sketcher.Constraint("DistanceX", 0, 2, -1, 1, Q("10.65 mm")))
groove9 = doc.addObject("PartDesign::Groove", "Groove008")
body.addObject(groove9)
groove9.Profile = sketch10
groove9.ReferenceAxis = (sketch10, ["Axis0"])
groove9.Angle = 360

# Sketch on YZ plane
sketch11 = doc.addObject("Sketcher::SketchObject", "Sketch010")
body.addObject(sketch11)
sketch11.AttachmentSupport = (doc.YZ_Plane, [""])
sketch11.MapMode = "FlatFace"
sketch11.addGeometry(Part.LineSegment(V(-7.7, 0, 0), V(-7.7, 10.4, 0)), False)
sketch11.addGeometry(Part.LineSegment(V(-7.7, 10.4, 0), V(-8.2, 10, 0)), False)
sketch11.addGeometry(Part.LineSegment(V(-8.2, 10, 0), V(-8.2, 0, 0)), False)
sketch11.addGeometry(Part.LineSegment(V(-8.2, 0, 0), V(-7.7, 0, 0)), False)
sketch11.addGeometry(Part.LineSegment(V(-7.7, 10.4, 0), V(-7.7, 0, 0)), True)  # axis
sketch11.addConstraint(Sketcher.Constraint("Coincident", 0, 2, 1, 1))
sketch11.addConstraint(Sketcher.Constraint("Coincident", 1, 2, 2, 1))
sketch11.addConstraint(Sketcher.Constraint("Coincident", 2, 2, 3, 1))
sketch11.addConstraint(Sketcher.Constraint("Coincident", 3, 2, 0, 1))
sketch11.addConstraint(Sketcher.Constraint("Vertical", 0))
sketch11.addConstraint(Sketcher.Constraint("Vertical", 2))
sketch11.addConstraint(Sketcher.Constraint("Horizontal", 3))
sketch11.addConstraint(Sketcher.Constraint("Vertical", 4))
sketch11.addConstraint(Sketcher.Constraint("Coincident", 4, 1, 0, 2))
sketch11.addConstraint(Sketcher.Constraint("PointOnObject", 2, 2, -1))
sketch11.addConstraint(Sketcher.Constraint("PointOnObject", 4, 2, -1))
sketch11.addConstraint(Sketcher.Constraint("DistanceY", 2, 2, 2, 1, Q("10 mm")))
sketch11.addConstraint(Sketcher.Constraint("Angle", 1, Q("-149 deg")))
sketch11.addConstraint(Sketcher.Constraint("DistanceX", 3, 1, 3, 2, Q("0.6 mm")))
sketch11.addConstraint(Sketcher.Constraint("DistanceX", 0, 2, -1, 1, Q("7.65 mm")))
groove10 = doc.addObject("PartDesign::Groove", "Groove009")
body.addObject(groove10)
groove10.Profile = sketch11
groove10.ReferenceAxis = (sketch11, ["Axis0"])
groove10.Angle = 360

# Sketch on YZ plane
sketch12 = doc.addObject("Sketcher::SketchObject", "Sketch011")
body.addObject(sketch12)
sketch12.AttachmentSupport = (doc.YZ_Plane, [""])
sketch12.MapMode = "FlatFace"
sketch12.addGeometry(Part.LineSegment(V(-13.7, 0, 0), V(-13.7, 10.4, 0)), False)
sketch12.addGeometry(Part.LineSegment(V(-13.7, 10.4, 0), V(-14.2, 10, 0)), False)
sketch12.addGeometry(Part.LineSegment(V(-14.2, 10, 0), V(-14.2, 0, 0)), False)
sketch12.addGeometry(Part.LineSegment(V(-14.2, 0, 0), V(-13.7, 0, 0)), False)
sketch12.addGeometry(Part.LineSegment(V(-13.7, 10.4, 0), V(-13.7, 0, 0)), True)  # axis
sketch12.addConstraint(Sketcher.Constraint("Coincident", 0, 2, 1, 1))
sketch12.addConstraint(Sketcher.Constraint("Coincident", 1, 2, 2, 1))
sketch12.addConstraint(Sketcher.Constraint("Coincident", 2, 2, 3, 1))
sketch12.addConstraint(Sketcher.Constraint("Coincident", 3, 2, 0, 1))
sketch12.addConstraint(Sketcher.Constraint("Vertical", 0))
sketch12.addConstraint(Sketcher.Constraint("Vertical", 2))
sketch12.addConstraint(Sketcher.Constraint("Horizontal", 3))
sketch12.addConstraint(Sketcher.Constraint("Vertical", 4))
sketch12.addConstraint(Sketcher.Constraint("Coincident", 4, 1, 0, 2))
sketch12.addConstraint(Sketcher.Constraint("PointOnObject", 2, 2, -1))
sketch12.addConstraint(Sketcher.Constraint("PointOnObject", 4, 2, -1))
sketch12.addConstraint(Sketcher.Constraint("DistanceY", 2, 2, 2, 1, Q("10 mm")))
sketch12.addConstraint(Sketcher.Constraint("Angle", 1, Q("-149 deg")))
sketch12.addConstraint(Sketcher.Constraint("DistanceX", 3, 1, 3, 2, Q("0.6 mm")))
sketch12.addConstraint(Sketcher.Constraint("DistanceX", 0, 2, -1, 1, Q("13.65 mm")))
groove11 = doc.addObject("PartDesign::Groove", "Groove010")
body.addObject(groove11)
groove11.Profile = sketch12
groove11.ReferenceAxis = (sketch12, ["Axis0"])
groove11.Angle = 360

# Sketch on YZ plane
sketch13 = doc.addObject("Sketcher::SketchObject", "Sketch012")
body.addObject(sketch13)
sketch13.AttachmentSupport = (doc.YZ_Plane, [""])
sketch13.MapMode = "FlatFace"
sketch13.AttachmentOffset = App.Placement(V(0, 0, -16.65), App.Rotation())
sketch13.addGeometry(Part.LineSegment(V(0, 0, 0), V(0, 10.4, 0)), False)
sketch13.addGeometry(Part.LineSegment(V(0, 10.4, 0), V(-0.6, 10, 0)), False)
sketch13.addGeometry(Part.LineSegment(V(-0.6, 10, 0), V(-0.6, 0, 0)), False)
sketch13.addGeometry(Part.LineSegment(V(-0.6, 0, 0), V(0, 0, 0)), False)
sketch13.addConstraint(Sketcher.Constraint("Coincident", 0, 2, 1, 1))
sketch13.addConstraint(Sketcher.Constraint("Coincident", 1, 2, 2, 1))
sketch13.addConstraint(Sketcher.Constraint("Coincident", 2, 2, 3, 1))
sketch13.addConstraint(Sketcher.Constraint("Coincident", 3, 2, 0, 1))
sketch13.addConstraint(Sketcher.Constraint("Vertical", 0))
sketch13.addConstraint(Sketcher.Constraint("Vertical", 2))
sketch13.addConstraint(Sketcher.Constraint("Horizontal", 3))
sketch13.addConstraint(Sketcher.Constraint("Coincident", 3, 2, -1, 1))
sketch13.addConstraint(Sketcher.Constraint("DistanceY", 2, 2, 2, 1, Q("10 mm")))
sketch13.addConstraint(Sketcher.Constraint("Angle", 1, Q("-149 deg")))
sketch13.addConstraint(Sketcher.Constraint("DistanceX", 3, 1, 3, 2, Q("0.6 mm")))
groove12 = doc.addObject("PartDesign::Groove", "Groove011")
body.addObject(groove12)
groove12.Profile = sketch13
groove12.ReferenceAxis = (sketch13, ["V_Axis"])
groove12.Angle = 360

# Sketch on YZ plane
sketch14 = doc.addObject("Sketcher::SketchObject", "Sketch013")
body.addObject(sketch14)
sketch14.AttachmentSupport = (doc.YZ_Plane, [""])
sketch14.MapMode = "FlatFace"
sketch14.AttachmentOffset = App.Placement(V(0, 0, -13.65), App.Rotation())
sketch14.addGeometry(Part.LineSegment(V(0, 0, 0), V(0, 10.4, 0)), False)
sketch14.addGeometry(Part.LineSegment(V(0, 10.4, 0), V(-0.6, 10, 0)), False)
sketch14.addGeometry(Part.LineSegment(V(-0.6, 10, 0), V(-0.6, 0, 0)), False)
sketch14.addGeometry(Part.LineSegment(V(-0.6, 0, 0), V(0, 0, 0)), False)
sketch14.addConstraint(Sketcher.Constraint("Coincident", 0, 2, 1, 1))
sketch14.addConstraint(Sketcher.Constraint("Coincident", 1, 2, 2, 1))
sketch14.addConstraint(Sketcher.Constraint("Coincident", 2, 2, 3, 1))
sketch14.addConstraint(Sketcher.Constraint("Coincident", 3, 2, 0, 1))
sketch14.addConstraint(Sketcher.Constraint("Vertical", 0))
sketch14.addConstraint(Sketcher.Constraint("Vertical", 2))
sketch14.addConstraint(Sketcher.Constraint("Horizontal", 3))
sketch14.addConstraint(Sketcher.Constraint("Coincident", 3, 2, -1, 1))
sketch14.addConstraint(Sketcher.Constraint("DistanceY", 2, 2, 2, 1, Q("10 mm")))
sketch14.addConstraint(Sketcher.Constraint("Angle", 1, Q("-149 deg")))
sketch14.addConstraint(Sketcher.Constraint("DistanceX", 3, 1, 3, 2, Q("0.6 mm")))
groove13 = doc.addObject("PartDesign::Groove", "Groove012")
body.addObject(groove13)
groove13.Profile = sketch14
groove13.ReferenceAxis = (sketch14, ["V_Axis"])
groove13.Angle = 360

# Sketch on YZ plane
sketch15 = doc.addObject("Sketcher::SketchObject", "Sketch014")
body.addObject(sketch15)
sketch15.AttachmentSupport = (doc.YZ_Plane, [""])
sketch15.MapMode = "FlatFace"
sketch15.AttachmentOffset = App.Placement(V(0, 0, -10.65), App.Rotation())
sketch15.addGeometry(Part.LineSegment(V(0, 0, 0), V(0, 10.4, 0)), False)
sketch15.addGeometry(Part.LineSegment(V(0, 10.4, 0), V(-0.6, 10, 0)), False)
sketch15.addGeometry(Part.LineSegment(V(-0.6, 10, 0), V(-0.6, 0, 0)), False)
sketch15.addGeometry(Part.LineSegment(V(-0.6, 0, 0), V(0, 0, 0)), False)
sketch15.addConstraint(Sketcher.Constraint("Coincident", 0, 2, 1, 1))
sketch15.addConstraint(Sketcher.Constraint("Coincident", 1, 2, 2, 1))
sketch15.addConstraint(Sketcher.Constraint("Coincident", 2, 2, 3, 1))
sketch15.addConstraint(Sketcher.Constraint("Coincident", 3, 2, 0, 1))
sketch15.addConstraint(Sketcher.Constraint("Vertical", 0))
sketch15.addConstraint(Sketcher.Constraint("Vertical", 2))
sketch15.addConstraint(Sketcher.Constraint("Horizontal", 3))
sketch15.addConstraint(Sketcher.Constraint("Coincident", 3, 2, -1, 1))
sketch15.addConstraint(Sketcher.Constraint("DistanceY", 2, 2, 2, 1, Q("10 mm")))
sketch15.addConstraint(Sketcher.Constraint("Angle", 1, Q("-149 deg")))
sketch15.addConstraint(Sketcher.Constraint("DistanceX", 3, 1, 3, 2, Q("0.6 mm")))
groove14 = doc.addObject("PartDesign::Groove", "Groove013")
body.addObject(groove14)
groove14.Profile = sketch15
groove14.ReferenceAxis = (sketch15, ["V_Axis"])
groove14.Angle = 360

# Sketch on YZ plane
sketch16 = doc.addObject("Sketcher::SketchObject", "Sketch015")
body.addObject(sketch16)
sketch16.AttachmentSupport = (doc.YZ_Plane, [""])
sketch16.MapMode = "FlatFace"
sketch16.AttachmentOffset = App.Placement(V(0, 0, -7.65), App.Rotation())
sketch16.addGeometry(Part.LineSegment(V(0, 0, 0), V(0, 10.4, 0)), False)
sketch16.addGeometry(Part.LineSegment(V(0, 10.4, 0), V(-0.6, 10, 0)), False)
sketch16.addGeometry(Part.LineSegment(V(-0.6, 10, 0), V(-0.6, 0, 0)), False)
sketch16.addGeometry(Part.LineSegment(V(-0.6, 0, 0), V(0, 0, 0)), False)
sketch16.addConstraint(Sketcher.Constraint("Coincident", 0, 2, 1, 1))
sketch16.addConstraint(Sketcher.Constraint("Coincident", 1, 2, 2, 1))
sketch16.addConstraint(Sketcher.Constraint("Coincident", 2, 2, 3, 1))
sketch16.addConstraint(Sketcher.Constraint("Coincident", 3, 2, 0, 1))
sketch16.addConstraint(Sketcher.Constraint("Vertical", 0))
sketch16.addConstraint(Sketcher.Constraint("Vertical", 2))
sketch16.addConstraint(Sketcher.Constraint("Horizontal", 3))
sketch16.addConstraint(Sketcher.Constraint("Coincident", 3, 2, -1, 1))
sketch16.addConstraint(Sketcher.Constraint("DistanceY", 2, 2, 2, 1, Q("10 mm")))
sketch16.addConstraint(Sketcher.Constraint("Angle", 1, Q("-149 deg")))
sketch16.addConstraint(Sketcher.Constraint("DistanceX", 3, 1, 3, 2, Q("0.6 mm")))
groove15 = doc.addObject("PartDesign::Groove", "Groove014")
body.addObject(groove15)
groove15.Profile = sketch16
groove15.ReferenceAxis = (sketch16, ["V_Axis"])
groove15.Angle = 360

# Sketch on YZ plane
sketch17 = doc.addObject("Sketcher::SketchObject", "Sketch016")
body.addObject(sketch17)
sketch17.AttachmentSupport = (doc.YZ_Plane, [""])
sketch17.MapMode = "FlatFace"
sketch17.addGeometry(Part.LineSegment(V(5, -1, 0), V(5, 0, 0)), False)
sketch17.addGeometry(Part.LineSegment(V(5, 0, 0), V(3, 0, 0)), False)
sketch17.addGeometry(Part.LineSegment(V(3, 0, 0), V(3, -3.5, 0)), False)
sketch17.addGeometry(Part.LineSegment(V(3, -3.5, 0), V(3.5, -3.5, 0)), False)
sketch17.addGeometry(Part.LineSegment(V(3.5, -3.5, 0), V(3.5, -2.5, 0)), False)
sketch17.addGeometry(Part.ArcOfCircle(Part.Circle(V(5, -2.5, 0), V(0, 0, 1), 1.5), math.radians(90), math.radians(180)), False)
sketch17.addGeometry(Part.LineSegment(V(3.5, 2.7, 0), V(3, 2.7, 0)), False)
sketch17.addGeometry(Part.LineSegment(V(3, 2.7, 0), V(3, 2, 0)), False)
sketch17.addGeometry(Part.LineSegment(V(3, 2, 0), V(3.5, 2, 0)), False)
sketch17.addGeometry(Part.LineSegment(V(3.5, 2, 0), V(3.5, 2.7, 0)), False)
sketch17.addConstraint(Sketcher.Constraint("Coincident", 0, 2, 1, 1))
sketch17.addConstraint(Sketcher.Constraint("Coincident", 1, 2, 2, 1))
sketch17.addConstraint(Sketcher.Constraint("Coincident", 2, 2, 3, 1))
sketch17.addConstraint(Sketcher.Constraint("Coincident", 3, 2, 4, 1))
sketch17.addConstraint(Sketcher.Constraint("Tangent", 4, 2, 5, 2))
sketch17.addConstraint(Sketcher.Constraint("Coincident", 5, 1, 0, 1))
sketch17.addConstraint(Sketcher.Constraint("Coincident", 6, 2, 7, 1))
sketch17.addConstraint(Sketcher.Constraint("Coincident", 7, 2, 8, 1))
sketch17.addConstraint(Sketcher.Constraint("Coincident", 8, 2, 9, 1))
sketch17.addConstraint(Sketcher.Constraint("Coincident", 9, 2, 6, 1))
sketch17.addConstraint(Sketcher.Constraint("Vertical", 0))
sketch17.addConstraint(Sketcher.Constraint("Horizontal", 1))
sketch17.addConstraint(Sketcher.Constraint("Vertical", 2))
sketch17.addConstraint(Sketcher.Constraint("Horizontal", 3))
sketch17.addConstraint(Sketcher.Constraint("Vertical", 4))
sketch17.addConstraint(Sketcher.Constraint("Horizontal", 6))
sketch17.addConstraint(Sketcher.Constraint("Vertical", 7))
sketch17.addConstraint(Sketcher.Constraint("Horizontal", 8))
sketch17.addConstraint(Sketcher.Constraint("Vertical", 9))
sketch17.addConstraint(Sketcher.Constraint("PointOnObject", 0, 2, -1))
sketch17.addConstraint(Sketcher.Constraint("Vertical", 5, 3, 0, 2))
sketch17.addConstraint(Sketcher.Constraint("Vertical", 2, 2, 6, 2))
sketch17.addConstraint(Sketcher.Constraint("Vertical", 4, 2, 8, 2))
sketch17.addConstraint(Sketcher.Constraint("Equal", 0, 4))
sketch17.addConstraint(Sketcher.Constraint("Radius", 5, Q("1.5 mm")))
sketch17.addConstraint(Sketcher.Constraint("DistanceX", 1, 2, 1, 1, Q("2 mm")))
sketch17.addConstraint(Sketcher.Constraint("DistanceY", 0, 1, 0, 2, Q("1 mm")))
sketch17.addConstraint(Sketcher.Constraint("DistanceY", 7, 2, 7, 1, Q("0.7 mm")))
sketch17.addConstraint(Sketcher.Constraint("DistanceX", -1, 1, 5, 3, Q("5 mm")))
sketch17.addConstraint(Sketcher.Constraint("DistanceY", -1, 1, 7, 2, Q("2 mm")))
revolution = doc.addObject("PartDesign::Revolution", "Revolution")
body.addObject(revolution)
revolution.Profile = sketch17
revolution.ReferenceAxis = (sketch17, ["V_Axis"])
revolution.Angle = 360

# Sketch on XY plane
sketch18 = doc.addObject("Sketcher::SketchObject", "Sketch017")
body.addObject(sketch18)
sketch18.AttachmentSupport = (doc.XY_Plane, [""])
sketch18.MapMode = "FlatFace"
sketch18.addGeometry(Part.Circle(V(0, 0, 0), V(0, 0, 1), 1.4), False)
sketch18.addConstraint(Sketcher.Constraint("Coincident", 0, 3, -1, 1))
sketch18.addConstraint(Sketcher.Constraint("Diameter", 0, Q("2.9 mm")))
doc.recompute()
hole = doc.addObject("PartDesign::Hole", "Hole")
body.addObject(hole)
hole.Profile = sketch18
hole.ThreadType = "None"
hole.Diameter = 2.9
hole.DepthType = "ThroughAll"
hole.Reversed = True

# Sketch on XY plane
sketch19 = doc.addObject("Sketcher::SketchObject", "Sketch018")
body.addObject(sketch19)
sketch19.AttachmentSupport = (doc.XY_Plane, [""])
sketch19.MapMode = "FlatFace"
sketch19.addGeometry(Part.Circle(V(7.7, 0, 0), V(0, 0, 1), 1.4), False)
sketch19.addGeometry(Part.Circle(V(-7.7, 0, 0), V(0, 0, 1), 1.4), False)
sketch19.addGeometry(Part.Circle(V(0, 10.7, 0), V(0, 0, 1), 1.4), False)
sketch19.addGeometry(Part.Circle(V(0, -10.7, 0), V(0, 0, 1), 1.4), False)
sketch19.addConstraint(Sketcher.Constraint("Equal", 0, 1))
sketch19.addConstraint(Sketcher.Constraint("Equal", 1, 2))
sketch19.addConstraint(Sketcher.Constraint("Equal", 2, 3))
sketch19.addConstraint(Sketcher.Constraint("Symmetric", 0, 3, 1, 3, -1, 1))
sketch19.addConstraint(Sketcher.Constraint("Symmetric", 2, 3, 3, 3, -1, 1))
sketch19.addConstraint(Sketcher.Constraint("PointOnObject", 0, 3, -1))
sketch19.addConstraint(Sketcher.Constraint("PointOnObject", 2, 3, -2))
sketch19.addConstraint(Sketcher.Constraint("Diameter", 0, Q("2.7 mm")))
sketch19.addConstraint(Sketcher.Constraint("DistanceX", 1, 3, 0, 3, Q("15.3 mm")))
sketch19.addConstraint(Sketcher.Constraint("DistanceY", 3, 3, 2, 3, Q("21.3 mm")))
doc.recompute()
hole2 = doc.addObject("PartDesign::Hole", "Hole001")
body.addObject(hole2)
hole2.Profile = sketch19
hole2.ThreadType = "None"
hole2.Diameter = 2.7
hole2.DepthType = "Dimension"
hole2.Depth = 2.7
hole2.DrillPoint = "Flat"
hole2.Reversed = True

doc.recompute()
